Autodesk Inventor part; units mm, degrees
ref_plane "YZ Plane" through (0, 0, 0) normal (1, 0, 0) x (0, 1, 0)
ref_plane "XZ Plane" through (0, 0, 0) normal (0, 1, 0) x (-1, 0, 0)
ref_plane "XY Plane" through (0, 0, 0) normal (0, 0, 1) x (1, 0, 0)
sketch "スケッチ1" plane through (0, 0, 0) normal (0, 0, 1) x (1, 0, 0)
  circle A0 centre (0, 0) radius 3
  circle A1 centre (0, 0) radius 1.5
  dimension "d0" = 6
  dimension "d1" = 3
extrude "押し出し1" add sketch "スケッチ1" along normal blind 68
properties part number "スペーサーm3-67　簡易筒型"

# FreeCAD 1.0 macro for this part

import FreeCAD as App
import Part
import Sketcher
from FreeCAD import Vector

doc = App.newDocument("Part")
body = doc.addObject("PartDesign::Body", "Body")

# Sketch on XY plane
sketch1 = body.newObject("Sketcher::SketchObject", "Sketch")
sketch1.AttachmentSupport = (doc.getObject("XY_Plane"), [""])
sketch1.MapMode = "FlatFace"
sketch1.addGeometry([
    Part.Circle(Vector(0, 0, 0), Vector(0, 0, 1), 3),
    Part.Circle(Vector(0, 0, 0), Vector(0, 0, 1), 1.5),
], False)
sketch1.addConstraint([
    Sketcher.Constraint("Coincident", 0, 3, -1, 1),
    Sketcher.Constraint("Coincident", 1, 3, -1, 1),
    Sketcher.Constraint("Diameter", 0, 6.0),
    Sketcher.Constraint("Diameter", 1, 3.0),
])
pad1 = body.newObject("PartDesign::Pad", "Pad")
pad1.Profile = sketch1
pad1.Length = 68

doc.recompute()
